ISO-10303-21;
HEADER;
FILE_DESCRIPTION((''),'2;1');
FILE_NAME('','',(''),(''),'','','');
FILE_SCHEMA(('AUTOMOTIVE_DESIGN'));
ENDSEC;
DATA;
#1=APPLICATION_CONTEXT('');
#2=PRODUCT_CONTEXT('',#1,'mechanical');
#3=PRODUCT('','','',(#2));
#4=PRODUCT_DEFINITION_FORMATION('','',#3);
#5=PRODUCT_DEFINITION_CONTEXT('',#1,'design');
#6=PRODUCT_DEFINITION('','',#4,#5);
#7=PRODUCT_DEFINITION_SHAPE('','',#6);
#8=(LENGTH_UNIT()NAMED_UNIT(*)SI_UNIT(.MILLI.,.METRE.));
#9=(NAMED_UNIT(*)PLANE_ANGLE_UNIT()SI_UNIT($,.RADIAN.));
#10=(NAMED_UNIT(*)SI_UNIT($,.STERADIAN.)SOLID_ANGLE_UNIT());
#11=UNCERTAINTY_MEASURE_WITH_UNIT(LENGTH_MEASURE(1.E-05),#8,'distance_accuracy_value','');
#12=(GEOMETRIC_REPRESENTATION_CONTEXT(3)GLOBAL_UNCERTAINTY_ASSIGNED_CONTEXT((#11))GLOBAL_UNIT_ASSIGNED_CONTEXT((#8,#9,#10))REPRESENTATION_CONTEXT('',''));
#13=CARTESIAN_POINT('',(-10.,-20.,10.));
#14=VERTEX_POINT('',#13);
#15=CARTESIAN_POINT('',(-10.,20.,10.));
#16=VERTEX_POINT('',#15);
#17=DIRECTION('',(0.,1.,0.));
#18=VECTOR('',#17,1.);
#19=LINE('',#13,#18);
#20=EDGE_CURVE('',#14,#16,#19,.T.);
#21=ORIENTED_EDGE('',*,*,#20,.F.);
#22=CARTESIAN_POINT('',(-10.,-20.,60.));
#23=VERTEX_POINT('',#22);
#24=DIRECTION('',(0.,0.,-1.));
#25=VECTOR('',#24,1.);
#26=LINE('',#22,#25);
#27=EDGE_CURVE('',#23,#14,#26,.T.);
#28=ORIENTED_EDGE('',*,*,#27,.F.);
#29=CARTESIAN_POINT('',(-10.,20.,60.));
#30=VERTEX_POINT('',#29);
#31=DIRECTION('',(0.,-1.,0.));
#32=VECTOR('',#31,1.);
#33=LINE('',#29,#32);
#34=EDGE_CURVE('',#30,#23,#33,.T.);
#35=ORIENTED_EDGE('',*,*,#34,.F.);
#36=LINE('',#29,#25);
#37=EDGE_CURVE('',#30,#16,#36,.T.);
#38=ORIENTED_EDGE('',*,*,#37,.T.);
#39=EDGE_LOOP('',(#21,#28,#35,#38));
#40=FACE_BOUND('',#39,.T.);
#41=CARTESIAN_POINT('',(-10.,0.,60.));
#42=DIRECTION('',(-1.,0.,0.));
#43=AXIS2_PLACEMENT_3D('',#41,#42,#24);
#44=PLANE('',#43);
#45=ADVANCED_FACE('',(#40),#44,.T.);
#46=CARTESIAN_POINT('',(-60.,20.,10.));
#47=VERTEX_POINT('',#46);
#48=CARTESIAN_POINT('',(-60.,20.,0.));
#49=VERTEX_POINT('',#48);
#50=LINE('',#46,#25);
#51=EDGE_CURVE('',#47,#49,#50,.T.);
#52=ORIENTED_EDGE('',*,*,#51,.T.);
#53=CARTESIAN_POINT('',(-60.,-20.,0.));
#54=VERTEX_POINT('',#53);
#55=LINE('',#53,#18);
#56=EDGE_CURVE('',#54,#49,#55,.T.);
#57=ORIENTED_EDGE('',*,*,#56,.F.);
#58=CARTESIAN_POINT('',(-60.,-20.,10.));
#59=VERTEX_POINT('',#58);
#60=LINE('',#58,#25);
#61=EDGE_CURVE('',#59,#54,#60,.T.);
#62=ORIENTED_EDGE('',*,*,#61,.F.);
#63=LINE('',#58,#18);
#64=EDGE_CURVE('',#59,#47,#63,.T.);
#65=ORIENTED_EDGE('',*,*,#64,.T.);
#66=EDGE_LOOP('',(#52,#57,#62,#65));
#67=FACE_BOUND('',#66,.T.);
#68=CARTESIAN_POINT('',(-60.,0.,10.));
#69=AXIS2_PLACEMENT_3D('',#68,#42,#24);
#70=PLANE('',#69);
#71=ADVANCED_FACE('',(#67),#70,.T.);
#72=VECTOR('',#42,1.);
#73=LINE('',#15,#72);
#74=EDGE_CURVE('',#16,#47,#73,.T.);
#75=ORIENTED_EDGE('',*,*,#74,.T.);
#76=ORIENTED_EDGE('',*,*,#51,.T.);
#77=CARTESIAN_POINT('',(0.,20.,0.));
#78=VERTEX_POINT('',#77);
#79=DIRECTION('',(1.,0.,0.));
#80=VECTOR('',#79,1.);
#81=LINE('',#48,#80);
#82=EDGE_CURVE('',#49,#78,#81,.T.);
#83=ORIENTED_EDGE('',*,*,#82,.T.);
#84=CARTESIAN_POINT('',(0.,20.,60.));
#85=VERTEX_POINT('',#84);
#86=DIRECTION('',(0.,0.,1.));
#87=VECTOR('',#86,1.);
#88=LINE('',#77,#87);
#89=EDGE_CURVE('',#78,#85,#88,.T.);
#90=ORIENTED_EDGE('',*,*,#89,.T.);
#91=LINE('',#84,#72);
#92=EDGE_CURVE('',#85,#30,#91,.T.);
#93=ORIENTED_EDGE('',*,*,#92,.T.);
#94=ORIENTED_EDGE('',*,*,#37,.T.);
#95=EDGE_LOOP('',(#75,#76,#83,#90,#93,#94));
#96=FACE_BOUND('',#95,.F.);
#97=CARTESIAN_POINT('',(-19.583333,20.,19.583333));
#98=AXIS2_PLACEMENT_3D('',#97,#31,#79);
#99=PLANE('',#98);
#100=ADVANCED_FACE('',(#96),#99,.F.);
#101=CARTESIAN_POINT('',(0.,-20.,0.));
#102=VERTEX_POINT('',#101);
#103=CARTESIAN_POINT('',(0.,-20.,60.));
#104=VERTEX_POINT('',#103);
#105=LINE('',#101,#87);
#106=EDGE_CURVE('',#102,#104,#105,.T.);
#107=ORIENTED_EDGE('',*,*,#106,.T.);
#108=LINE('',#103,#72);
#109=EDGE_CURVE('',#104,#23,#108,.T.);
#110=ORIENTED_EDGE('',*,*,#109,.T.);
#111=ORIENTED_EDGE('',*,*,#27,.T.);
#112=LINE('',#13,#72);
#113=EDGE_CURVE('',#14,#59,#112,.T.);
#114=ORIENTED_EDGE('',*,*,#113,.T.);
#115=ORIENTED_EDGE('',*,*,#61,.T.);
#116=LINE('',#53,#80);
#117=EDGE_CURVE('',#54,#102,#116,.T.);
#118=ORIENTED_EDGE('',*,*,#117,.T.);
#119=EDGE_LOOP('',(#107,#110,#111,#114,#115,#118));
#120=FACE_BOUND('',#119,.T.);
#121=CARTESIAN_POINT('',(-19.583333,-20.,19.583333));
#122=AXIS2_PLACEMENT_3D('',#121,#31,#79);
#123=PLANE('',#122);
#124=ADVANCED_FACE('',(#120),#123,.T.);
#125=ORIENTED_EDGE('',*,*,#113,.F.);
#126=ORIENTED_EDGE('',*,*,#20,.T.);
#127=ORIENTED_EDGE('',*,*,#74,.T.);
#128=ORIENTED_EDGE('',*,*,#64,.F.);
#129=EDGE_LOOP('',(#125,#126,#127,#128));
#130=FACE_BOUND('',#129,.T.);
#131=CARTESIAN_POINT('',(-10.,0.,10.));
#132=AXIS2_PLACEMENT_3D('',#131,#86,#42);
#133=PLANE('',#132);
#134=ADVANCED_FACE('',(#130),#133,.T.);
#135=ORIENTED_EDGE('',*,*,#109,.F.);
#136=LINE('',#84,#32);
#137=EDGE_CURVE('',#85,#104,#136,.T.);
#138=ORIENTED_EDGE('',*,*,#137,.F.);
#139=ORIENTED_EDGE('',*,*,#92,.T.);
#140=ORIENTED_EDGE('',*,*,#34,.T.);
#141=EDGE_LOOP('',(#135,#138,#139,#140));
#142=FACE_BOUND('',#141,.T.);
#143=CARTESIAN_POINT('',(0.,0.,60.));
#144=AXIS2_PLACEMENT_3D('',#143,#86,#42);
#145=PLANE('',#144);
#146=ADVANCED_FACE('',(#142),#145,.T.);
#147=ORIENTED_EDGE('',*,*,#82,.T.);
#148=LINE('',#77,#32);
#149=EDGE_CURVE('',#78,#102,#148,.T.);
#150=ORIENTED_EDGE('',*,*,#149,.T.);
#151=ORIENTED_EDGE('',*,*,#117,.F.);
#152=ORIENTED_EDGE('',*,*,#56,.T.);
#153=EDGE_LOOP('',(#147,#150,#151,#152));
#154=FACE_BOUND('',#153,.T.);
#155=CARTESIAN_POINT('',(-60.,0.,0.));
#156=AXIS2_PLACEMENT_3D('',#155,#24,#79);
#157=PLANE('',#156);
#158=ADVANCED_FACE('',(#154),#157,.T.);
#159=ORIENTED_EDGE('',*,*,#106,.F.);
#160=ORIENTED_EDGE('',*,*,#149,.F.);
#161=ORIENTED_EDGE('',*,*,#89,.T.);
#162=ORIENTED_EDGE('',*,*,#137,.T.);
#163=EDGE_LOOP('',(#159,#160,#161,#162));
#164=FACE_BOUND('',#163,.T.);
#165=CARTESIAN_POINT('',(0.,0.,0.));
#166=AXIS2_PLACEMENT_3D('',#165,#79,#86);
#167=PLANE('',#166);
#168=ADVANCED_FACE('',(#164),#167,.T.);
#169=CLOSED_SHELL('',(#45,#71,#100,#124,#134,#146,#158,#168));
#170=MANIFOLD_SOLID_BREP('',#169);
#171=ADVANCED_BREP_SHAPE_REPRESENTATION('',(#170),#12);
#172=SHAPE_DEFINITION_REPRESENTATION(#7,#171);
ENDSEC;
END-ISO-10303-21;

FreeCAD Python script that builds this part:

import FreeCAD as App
import Part
import Sketcher

doc = App.newDocument("Part")
body = doc.addObject("PartDesign::Body", "Body")

# Sketch on XZ plane
sketch1 = body.newObject("Sketcher::SketchObject", "Sketch")
sketch1.AttachmentSupport = (doc.getObject("XZ_Plane"), [""])
sketch1.MapMode = "FlatFace"
sketch1.addGeometry(Part.LineSegment(App.Vector(-60, 0, 0), App.Vector(0, 0, 0)), False)
sketch1.addGeometry(Part.LineSegment(App.Vector(0, 0, 0), App.Vector(0, 60, 0)), False)
sketch1.addGeometry(Part.LineSegment(App.Vector(0, 60, 0), App.Vector(-10, 60, 0)), False)
sketch1.addGeometry(Part.LineSegment(App.Vector(-10, 60, 0), App.Vector(-10, 10, 0)), False)
sketch1.addGeometry(Part.LineSegment(App.Vector(-10, 10, 0), App.Vector(-60, 10, 0)), False)
sketch1.addGeometry(Part.LineSegment(App.Vector(-60, 10, 0), App.Vector(-60, 0, 0)), False)
sketch1.addConstraint(Sketcher.Constraint("Coincident", 0, 2, 1, 1))
sketch1.addConstraint(Sketcher.Constraint("Coincident", 1, 2, 2, 1))
sketch1.addConstraint(Sketcher.Constraint("Coincident", 2, 2, 3, 1))
sketch1.addConstraint(Sketcher.Constraint("Coincident", 3, 2, 4, 1))
sketch1.addConstraint(Sketcher.Constraint("Coincident", 4, 2, 5, 1))
sketch1.addConstraint(Sketcher.Constraint("Coincident", 5, 2, 0, 1))
sketch1.addConstraint(Sketcher.Constraint("Horizontal", 0))
sketch1.addConstraint(Sketcher.Constraint("Vertical", 1))
sketch1.addConstraint(Sketcher.Constraint("Horizontal", 2))
sketch1.addConstraint(Sketcher.Constraint("Vertical", 3))
sketch1.addConstraint(Sketcher.Constraint("Horizontal", 4))
sketch1.addConstraint(Sketcher.Constraint("Vertical", 5))
sketch1.addConstraint(Sketcher.Constraint("Coincident", 0, 2, -1, 1))
sketch1.addConstraint(Sketcher.Constraint("Equal", 0, 1))
sketch1.addConstraint(Sketcher.Constraint("Equal", 4, 3))
sketch1.addConstraint(Sketcher.Constraint("DistanceX", 0, 1, 0, 2, 60.0))
sketch1.addConstraint(Sketcher.Constraint("DistanceX", 2, 2, 2, 1, 10.0))
pad1 = body.newObject("PartDesign::Pad", "Pad")
pad1.Profile = sketch1
pad1.Length = 40
pad1.Midplane = True

doc.recompute()
